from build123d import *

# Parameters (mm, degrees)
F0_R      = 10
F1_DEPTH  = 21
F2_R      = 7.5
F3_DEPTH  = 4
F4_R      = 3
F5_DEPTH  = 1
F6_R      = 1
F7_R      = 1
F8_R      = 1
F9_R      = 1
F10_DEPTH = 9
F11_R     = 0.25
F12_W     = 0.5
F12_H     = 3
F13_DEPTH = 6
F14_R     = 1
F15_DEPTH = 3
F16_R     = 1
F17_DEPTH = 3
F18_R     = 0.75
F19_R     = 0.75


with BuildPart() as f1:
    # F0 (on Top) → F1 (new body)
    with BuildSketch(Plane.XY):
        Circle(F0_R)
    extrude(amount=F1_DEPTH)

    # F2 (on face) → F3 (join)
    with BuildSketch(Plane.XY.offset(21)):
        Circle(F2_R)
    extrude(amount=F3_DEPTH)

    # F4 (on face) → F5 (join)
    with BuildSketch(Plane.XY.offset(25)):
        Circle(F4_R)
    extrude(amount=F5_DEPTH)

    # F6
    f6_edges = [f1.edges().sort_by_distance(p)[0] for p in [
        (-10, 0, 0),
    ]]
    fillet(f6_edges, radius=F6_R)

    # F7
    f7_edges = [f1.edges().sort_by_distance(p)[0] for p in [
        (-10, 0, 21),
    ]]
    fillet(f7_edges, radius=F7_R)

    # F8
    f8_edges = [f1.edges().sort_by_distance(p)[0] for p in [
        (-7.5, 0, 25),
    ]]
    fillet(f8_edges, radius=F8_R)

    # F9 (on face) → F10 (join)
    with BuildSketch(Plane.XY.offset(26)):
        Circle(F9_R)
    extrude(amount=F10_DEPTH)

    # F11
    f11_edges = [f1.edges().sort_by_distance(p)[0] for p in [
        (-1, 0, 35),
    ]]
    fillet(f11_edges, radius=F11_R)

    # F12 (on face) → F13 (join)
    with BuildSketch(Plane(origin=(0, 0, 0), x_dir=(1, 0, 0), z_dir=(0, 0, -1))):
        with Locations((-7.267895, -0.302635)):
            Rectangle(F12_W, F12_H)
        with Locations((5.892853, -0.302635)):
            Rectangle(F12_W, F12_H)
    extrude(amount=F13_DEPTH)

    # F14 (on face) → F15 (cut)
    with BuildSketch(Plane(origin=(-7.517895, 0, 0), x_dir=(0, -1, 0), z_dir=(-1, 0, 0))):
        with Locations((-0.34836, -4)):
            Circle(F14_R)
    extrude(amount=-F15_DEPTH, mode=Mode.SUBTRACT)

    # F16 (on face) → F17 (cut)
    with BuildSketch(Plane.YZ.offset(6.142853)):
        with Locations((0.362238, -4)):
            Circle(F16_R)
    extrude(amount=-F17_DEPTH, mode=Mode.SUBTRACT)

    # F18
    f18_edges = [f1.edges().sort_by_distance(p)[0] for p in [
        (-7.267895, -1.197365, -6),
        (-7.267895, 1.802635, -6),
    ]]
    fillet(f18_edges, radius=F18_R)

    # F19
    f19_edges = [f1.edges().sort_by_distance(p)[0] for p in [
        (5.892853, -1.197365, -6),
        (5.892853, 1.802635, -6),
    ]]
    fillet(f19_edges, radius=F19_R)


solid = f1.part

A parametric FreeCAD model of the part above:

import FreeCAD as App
import Part
import Sketcher

V = App.Vector
Q = App.Units.Quantity


def edges_at(feature, points):
    """Names of the edges that pass closest to the given points."""
    edges = feature.Shape.Edges
    near = lambda p: min(range(len(edges)), key=lambda i: edges[i].distToShape(Part.Vertex(*p))[0])
    return sorted({f"Edge{near(p) + 1}" for p in points})


def add_polygon(sketch, points):
    """Adds a closed chain of lines whose ends are joined by coincident constraints."""
    first, n = sketch.GeometryCount, len(points)
    for a, b in zip(points, points[1:] + points[:1]):
        sketch.addGeometry(Part.LineSegment(App.Vector(*a, 0), App.Vector(*b, 0)), False)
    for i in range(n):
        sketch.addConstraint(Sketcher.Constraint("Coincident", first + i, 2, first + (i + 1) % n, 1))

doc = App.newDocument("Part")
body = doc.addObject("PartDesign::Body", "Body")

sketch1 = doc.addObject("Sketcher::SketchObject", "Sketch")
body.addObject(sketch1)
sketch1.AttachmentSupport = (doc.XY_Plane, [""])
sketch1.MapMode = "FlatFace"
sketch1.addGeometry(Part.Circle(V(0, 0, 0), V(0, 0, 1), 10), False)
sketch1.addConstraint(Sketcher.Constraint("Coincident", 0, 3, -1, 1))
sketch1.addConstraint(Sketcher.Constraint("Diameter", 0, Q("20 mm")))
pad1 = doc.addObject("PartDesign::Pad", "Pad")
body.addObject(pad1)
pad1.Profile = sketch1
pad1.Length = 21

sketch2 = doc.addObject("Sketcher::SketchObject", "Sketch001")
body.addObject(sketch2)
sketch2.AttachmentSupport = (doc.XY_Plane, [""])
sketch2.MapMode = "FlatFace"
sketch2.AttachmentOffset = App.Placement(V(0, 0, 21), App.Rotation())
sketch2.addGeometry(Part.Circle(V(0, 0, 0), V(0, 0, 1), 8), False)
sketch2.addConstraint(Sketcher.Constraint("Coincident", 0, 3, -1, 1))
sketch2.addConstraint(Sketcher.Constraint("Diameter", 0, Q("15 mm")))
pad2 = doc.addObject("PartDesign::Pad", "Pad001")
body.addObject(pad2)
pad2.Profile = sketch2
pad2.Length = 4

sketch3 = doc.addObject("Sketcher::SketchObject", "Sketch002")
body.addObject(sketch3)
sketch3.AttachmentSupport = (doc.XY_Plane, [""])
sketch3.MapMode = "FlatFace"
sketch3.AttachmentOffset = App.Placement(V(0, 0, 25), App.Rotation())
sketch3.addGeometry(Part.Circle(V(0, 0, 0), V(0, 0, 1), 3), False)
sketch3.addConstraint(Sketcher.Constraint("Coincident", 0, 3, -1, 1))
sketch3.addConstraint(Sketcher.Constraint("Diameter", 0, Q("6 mm")))
pad3 = doc.addObject("PartDesign::Pad", "Pad002")
body.addObject(pad3)
pad3.Profile = sketch3
pad3.Length = 1
doc.recompute()

fillet = doc.addObject("PartDesign::Fillet", "Fillet")
body.addObject(fillet)
fillet.Base = (pad3, edges_at(pad3, [(-10, 0, 0)]))
fillet.Radius = 1
doc.recompute()

fillet2 = doc.addObject("PartDesign::Fillet", "Fillet001")
body.addObject(fillet2)
fillet2.Base = (fillet, edges_at(fillet, [(-10, 0, 21)]))
fillet2.Radius = 1
doc.recompute()

fillet3 = doc.addObject("PartDesign::Fillet", "Fillet002")
body.addObject(fillet3)
fillet3.Base = (fillet2, edges_at(fillet2, [(-7.5, 0, 25)]))
fillet3.Radius = 1

sketch4 = doc.addObject("Sketcher::SketchObject", "Sketch003")
body.addObject(sketch4)
sketch4.AttachmentSupport = (doc.XY_Plane, [""])
sketch4.MapMode = "FlatFace"
sketch4.AttachmentOffset = App.Placement(V(0, 0, 26), App.Rotation())
sketch4.addGeometry(Part.Circle(V(0, 0, 0), V(0, 0, 1), 1), False)
sketch4.addConstraint(Sketcher.Constraint("Coincident", 0, 3, -1, 1))
sketch4.addConstraint(Sketcher.Constraint("Diameter", 0, Q("2 mm")))
pad4 = doc.addObject("PartDesign::Pad", "Pad003")
body.addObject(pad4)
pad4.Profile = sketch4
pad4.Length = 9
doc.recompute()

fillet4 = doc.addObject("PartDesign::Fillet", "Fillet003")
body.addObject(fillet4)
fillet4.Base = (pad4, edges_at(pad4, [(-1, 0, 35)]))
fillet4.Radius = 0.25

sketch5 = doc.addObject("Sketcher::SketchObject", "Sketch004")
body.addObject(sketch5)
sketch5.AttachmentSupport = (doc.XY_Plane, [""])
sketch5.MapMode = "FlatFace"
add_polygon(sketch5, [(-7.5, -1.2), (-7.5, 1.8), (-7, 1.8), (-7, -1.2)])
add_polygon(sketch5, [(5.6, -1.2), (5.6, 1.8), (6.1, 1.8), (6.1, -1.2)])
sketch5.addConstraint(Sketcher.Constraint("Vertical", 0))
sketch5.addConstraint(Sketcher.Constraint("Horizontal", 1))
sketch5.addConstraint(Sketcher.Constraint("Vertical", 2))
sketch5.addConstraint(Sketcher.Constraint("Horizontal", 3))
sketch5.addConstraint(Sketcher.Constraint("Vertical", 4))
sketch5.addConstraint(Sketcher.Constraint("Horizontal", 5))
sketch5.addConstraint(Sketcher.Constraint("Vertical", 6))
sketch5.addConstraint(Sketcher.Constraint("Horizontal", 7))
sketch5.addConstraint(Sketcher.Constraint("Horizontal", 1, 2, 4, 2))
sketch5.addConstraint(Sketcher.Constraint("Horizontal", 3, 2, 6, 2))
sketch5.addConstraint(Sketcher.Constraint("Equal", 3, 5))
sketch5.addConstraint(Sketcher.Constraint("DistanceY", 0, 1, 0, 2, Q("3 mm")))
sketch5.addConstraint(Sketcher.Constraint("DistanceX", 1, 1, 1, 2, Q("0.5 mm")))
sketch5.addConstraint(Sketcher.Constraint("DistanceX", 0, 2, -1, 1, Q("7.517895 mm")))
sketch5.addConstraint(Sketcher.Constraint("DistanceY", -1, 1, 0, 2, Q("1.802635 mm")))
sketch5.addConstraint(Sketcher.Constraint("DistanceX", -1, 1, 4, 2, Q("5.642853 mm")))
pad5 = doc.addObject("PartDesign::Pad", "Pad004")
body.addObject(pad5)
pad5.Profile = sketch5
pad5.Length = 6
pad5.Reversed = True

sketch6 = doc.addObject("Sketcher::SketchObject", "Sketch005")
body.addObject(sketch6)
sketch6.AttachmentSupport = (doc.YZ_Plane, [""])
sketch6.MapMode = "FlatFace"
sketch6.AttachmentOffset = App.Placement(V(0, 0, -7.517895), App.Rotation())
sketch6.addGeometry(Part.Circle(V(0.3, -4, 0), V(0, 0, 1), 1), False)
sketch6.addConstraint(Sketcher.Constraint("Diameter", 0, Q("2 mm")))
sketch6.addConstraint(Sketcher.Constraint("DistanceY", 0, 3, -1, 1, Q("4 mm")))
sketch6.addConstraint(Sketcher.Constraint("DistanceX", -1, 1, 0, 3, Q("0.34836 mm")))
pocket1 = doc.addObject("PartDesign::Pocket", "Pocket")
body.addObject(pocket1)
pocket1.Profile = sketch6
pocket1.Length = 3
pocket1.Reversed = True

sketch7 = doc.addObject("Sketcher::SketchObject", "Sketch006")
body.addObject(sketch7)
sketch7.AttachmentSupport = (doc.YZ_Plane, [""])
sketch7.MapMode = "FlatFace"
sketch7.AttachmentOffset = App.Placement(V(0, 0, 6.142853), App.Rotation())
sketch7.addGeometry(Part.Circle(V(0.4, -4, 0), V(0, 0, 1), 1), False)
sketch7.addConstraint(Sketcher.Constraint("Diameter", 0, Q("2 mm")))
sketch7.addConstraint(Sketcher.Constraint("DistanceY", 0, 3, -1, 1, Q("4 mm")))
sketch7.addConstraint(Sketcher.Constraint("DistanceX", -1, 1, 0, 3, Q("0.362238 mm")))
pocket2 = doc.addObject("PartDesign::Pocket", "Pocket001")
body.addObject(pocket2)
pocket2.Profile = sketch7
pocket2.Length = 3
doc.recompute()

fillet5 = doc.addObject("PartDesign::Fillet", "Fillet004")
body.addObject(fillet5)
fillet5.Base = (pocket2, edges_at(pocket2, [(-7.268, -1.197, -6), (-7.268, 1.803, -6)]))
fillet5.Radius = 0.75
doc.recompute()

fillet6 = doc.addObject("PartDesign::Fillet", "Fillet005")
body.addObject(fillet6)
fillet6.Base = (fillet5, edges_at(fillet5, [(5.893, -1.197, -6), (5.893, 1.803, -6)]))
fillet6.Radius = 0.75

doc.recompute()
